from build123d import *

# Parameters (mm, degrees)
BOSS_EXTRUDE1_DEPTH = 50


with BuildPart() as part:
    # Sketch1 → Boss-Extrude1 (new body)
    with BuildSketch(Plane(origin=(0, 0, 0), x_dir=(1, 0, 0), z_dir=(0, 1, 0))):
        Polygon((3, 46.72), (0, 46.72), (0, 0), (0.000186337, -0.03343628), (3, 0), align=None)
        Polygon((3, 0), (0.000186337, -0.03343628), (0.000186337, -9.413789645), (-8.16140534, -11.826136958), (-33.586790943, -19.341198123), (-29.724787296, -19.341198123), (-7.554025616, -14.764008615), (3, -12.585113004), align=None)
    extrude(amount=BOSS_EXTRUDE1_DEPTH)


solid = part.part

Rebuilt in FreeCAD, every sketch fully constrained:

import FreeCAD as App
import Part
import Sketcher

V = App.Vector


def add_polygon(sketch, points):
    """Adds a closed chain of lines whose ends are joined by coincident constraints."""
    first, n = sketch.GeometryCount, len(points)
    for a, b in zip(points, points[1:] + points[:1]):
        sketch.addGeometry(Part.LineSegment(App.Vector(*a, 0), App.Vector(*b, 0)), False)
    for i in range(n):
        sketch.addConstraint(Sketcher.Constraint("Coincident", first + i, 2, first + (i + 1) % n, 1))

doc = App.newDocument("Part")
body = doc.addObject("PartDesign::Body", "Body")

# Sketch on XZ plane
sketch1 = body.newObject("Sketcher::SketchObject", "Sketch")
sketch1.AttachmentSupport = (doc.getObject("XZ_Plane"), [""])
sketch1.MapMode = "FlatFace"
add_polygon(sketch1, [(3, -46.72), (0, -46.72), (0, 0), (0.000186, 0.033436), (0.000186, 9.41379), (-8.161405, 11.826137), (-33.586791, 19.341198), (-29.724787, 19.341198), (-7.554026, 14.764009), (3, 12.585113)])  # lines 0-9
sketch1.addConstraint([
    Sketcher.Constraint("Horizontal", 0),
    Sketcher.Constraint("Vertical", 1),
    Sketcher.Constraint("Vertical", 3),
    Sketcher.Constraint("Horizontal", 6),
    Sketcher.Constraint("Vertical", 9),
    Sketcher.Constraint("Coincident", 1, 2, -1, 1),
    Sketcher.Constraint("Parallel", 4, 5),
    Sketcher.Constraint("Parallel", 7, 8),
    Sketcher.Constraint("DistanceX", 0, 2, 0, 1, 3.0),
    Sketcher.Constraint("DistanceY", 1, 1, 1, 2, 46.72),
    Sketcher.Constraint("DistanceY", -1, 1, 5, 2, 19.341198),
    Sketcher.Constraint("DistanceY", 2, 2, 4, 2, 11.792701),
    Sketcher.Constraint("Distance", 4, 8.51064),
    Sketcher.Constraint("Distance", 5, 26.512759),
    Sketcher.Constraint("DistanceX", 6, 1, 6, 2, 3.862004),
    Sketcher.Constraint("DistanceY", 3, 1, 3, 2, 9.380353),
    Sketcher.Constraint("DistanceY", 9, 2, 9, 1, 59.305113),
    Sketcher.Constraint("DistanceX", 5, 2, -1, 1, 33.586791),
    Sketcher.Constraint("DistanceY", -1, 1, 7, 2, 14.764009),
])
pad1 = body.newObject("PartDesign::Pad", "Pad")
pad1.Profile = sketch1
pad1.Length = 50
pad1.Reversed = True

doc.recompute()
